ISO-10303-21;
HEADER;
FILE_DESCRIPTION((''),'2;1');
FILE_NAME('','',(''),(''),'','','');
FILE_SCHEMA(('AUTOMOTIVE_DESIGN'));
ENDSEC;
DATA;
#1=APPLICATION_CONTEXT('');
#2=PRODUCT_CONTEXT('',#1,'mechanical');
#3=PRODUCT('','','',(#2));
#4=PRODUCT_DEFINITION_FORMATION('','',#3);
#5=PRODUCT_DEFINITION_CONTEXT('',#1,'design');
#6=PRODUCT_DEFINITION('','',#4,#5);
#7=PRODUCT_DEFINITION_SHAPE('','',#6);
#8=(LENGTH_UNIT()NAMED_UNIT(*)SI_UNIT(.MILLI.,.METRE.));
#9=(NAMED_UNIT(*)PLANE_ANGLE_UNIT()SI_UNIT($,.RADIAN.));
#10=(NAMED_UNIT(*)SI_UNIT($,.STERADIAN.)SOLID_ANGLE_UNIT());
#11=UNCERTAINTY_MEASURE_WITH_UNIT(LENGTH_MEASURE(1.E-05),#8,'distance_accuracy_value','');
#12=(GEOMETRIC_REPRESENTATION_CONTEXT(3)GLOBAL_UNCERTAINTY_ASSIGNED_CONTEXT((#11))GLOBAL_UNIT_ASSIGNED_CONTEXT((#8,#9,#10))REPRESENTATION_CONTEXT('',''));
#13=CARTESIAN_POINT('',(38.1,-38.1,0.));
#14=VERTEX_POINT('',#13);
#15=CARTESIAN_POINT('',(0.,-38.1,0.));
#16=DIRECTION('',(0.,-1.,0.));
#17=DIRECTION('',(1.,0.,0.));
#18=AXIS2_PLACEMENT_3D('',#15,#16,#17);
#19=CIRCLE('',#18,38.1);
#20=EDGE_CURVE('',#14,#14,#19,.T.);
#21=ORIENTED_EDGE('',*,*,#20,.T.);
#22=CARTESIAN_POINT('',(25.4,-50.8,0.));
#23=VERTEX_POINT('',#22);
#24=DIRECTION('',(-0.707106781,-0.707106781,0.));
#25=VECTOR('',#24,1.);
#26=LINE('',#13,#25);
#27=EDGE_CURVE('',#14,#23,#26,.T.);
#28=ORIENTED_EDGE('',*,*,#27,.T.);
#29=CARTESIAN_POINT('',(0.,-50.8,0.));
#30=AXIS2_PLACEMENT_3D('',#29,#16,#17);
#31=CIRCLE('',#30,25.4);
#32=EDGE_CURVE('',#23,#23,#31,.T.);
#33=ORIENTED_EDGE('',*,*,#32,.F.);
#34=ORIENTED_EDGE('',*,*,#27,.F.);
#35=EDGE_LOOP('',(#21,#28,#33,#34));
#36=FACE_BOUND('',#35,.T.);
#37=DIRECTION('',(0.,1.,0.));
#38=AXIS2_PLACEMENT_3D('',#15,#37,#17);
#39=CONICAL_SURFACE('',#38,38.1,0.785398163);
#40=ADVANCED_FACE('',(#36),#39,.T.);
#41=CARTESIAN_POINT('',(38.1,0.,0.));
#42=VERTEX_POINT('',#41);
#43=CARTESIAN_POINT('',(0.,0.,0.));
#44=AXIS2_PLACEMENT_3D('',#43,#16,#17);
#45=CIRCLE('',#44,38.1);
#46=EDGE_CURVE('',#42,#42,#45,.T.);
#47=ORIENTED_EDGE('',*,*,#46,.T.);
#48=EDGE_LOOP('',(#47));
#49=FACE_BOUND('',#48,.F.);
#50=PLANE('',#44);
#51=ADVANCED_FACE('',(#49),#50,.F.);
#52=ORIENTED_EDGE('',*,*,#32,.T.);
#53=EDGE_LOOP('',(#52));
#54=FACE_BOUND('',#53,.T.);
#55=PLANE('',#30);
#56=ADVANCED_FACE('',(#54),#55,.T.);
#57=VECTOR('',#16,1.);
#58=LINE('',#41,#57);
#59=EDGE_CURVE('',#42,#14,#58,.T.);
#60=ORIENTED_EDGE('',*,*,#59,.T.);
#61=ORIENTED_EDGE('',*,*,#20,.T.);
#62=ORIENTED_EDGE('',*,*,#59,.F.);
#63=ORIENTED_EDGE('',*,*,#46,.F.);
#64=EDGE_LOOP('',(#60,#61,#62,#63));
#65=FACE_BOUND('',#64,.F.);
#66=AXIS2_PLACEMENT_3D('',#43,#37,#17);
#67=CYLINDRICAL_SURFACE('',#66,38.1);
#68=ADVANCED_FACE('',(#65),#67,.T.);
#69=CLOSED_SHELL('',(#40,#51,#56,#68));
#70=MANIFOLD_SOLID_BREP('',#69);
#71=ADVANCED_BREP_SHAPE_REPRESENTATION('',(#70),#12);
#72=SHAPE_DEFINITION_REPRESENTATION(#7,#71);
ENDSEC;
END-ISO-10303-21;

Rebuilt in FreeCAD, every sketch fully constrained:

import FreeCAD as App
import Part
import Sketcher

V = App.Vector
Q = App.Units.Quantity


def edges_at(feature, points):
    """Names of the edges that pass closest to the given points."""
    edges = feature.Shape.Edges
    near = lambda p: min(range(len(edges)), key=lambda i: edges[i].distToShape(Part.Vertex(*p))[0])
    return sorted({f"Edge{near(p) + 1}" for p in points})

doc = App.newDocument("Part")
body = doc.addObject("PartDesign::Body", "Body")

sketch1 = body.newObject("Sketcher::SketchObject", "Sketch")
sketch1.AttachmentSupport = (doc.getObject("XZ_Plane"), [""])
sketch1.MapMode = "FlatFace"
sketch1.addGeometry(Part.Circle(V(0, 0, 0), V(0, 0, 1), 38.1), False)
sketch1.addConstraint(Sketcher.Constraint("Coincident", 0, 3, -1, 1))
sketch1.addConstraint(Sketcher.Constraint("Diameter", 0, Q("3 in")))
pad1 = body.newObject("PartDesign::Pad", "Pad")
pad1.Profile = sketch1
pad1.Length = Q("2 in")
doc.recompute()

chamfer = body.newObject("PartDesign::Chamfer", "Chamfer")
chamfer.Base = (pad1, edges_at(pad1, [(-38.1, -50.8, 0)]))
chamfer.Size = Q("0.5 in")

doc.recompute()
